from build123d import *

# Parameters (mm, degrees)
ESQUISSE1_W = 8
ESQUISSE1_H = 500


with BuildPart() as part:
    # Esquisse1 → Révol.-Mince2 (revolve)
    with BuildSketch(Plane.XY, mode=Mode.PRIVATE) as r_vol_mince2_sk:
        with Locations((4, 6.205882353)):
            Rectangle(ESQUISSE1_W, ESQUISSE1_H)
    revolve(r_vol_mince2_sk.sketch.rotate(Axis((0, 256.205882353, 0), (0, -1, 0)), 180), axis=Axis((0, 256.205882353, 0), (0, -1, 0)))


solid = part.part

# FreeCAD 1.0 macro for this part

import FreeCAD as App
import Part
import Sketcher
from FreeCAD import Vector
Q = App.Units.Quantity

doc = App.newDocument("Part")
body = doc.addObject("PartDesign::Body", "Body")

# Sketch on XY plane
sketch1 = body.newObject("Sketcher::SketchObject", "Sketch")
sketch1.AttachmentSupport = (doc.getObject("XY_Plane"), [""])
sketch1.MapMode = "FlatFace"
sketch1.addGeometry([
    Part.LineSegment(Vector(0, 256, 0), Vector(0, -244, 0)),
    Part.LineSegment(Vector(0, -244, 0), Vector(8, -244, 0)),
    Part.LineSegment(Vector(8, -244, 0), Vector(8, 256, 0)),
    Part.LineSegment(Vector(8, 256, 0), Vector(0, 256, 0)),
], False)
sketch1.addConstraint([
    Sketcher.Constraint("Coincident", 0, 2, 1, 1),
    Sketcher.Constraint("Coincident", 1, 2, 2, 1),
    Sketcher.Constraint("Coincident", 2, 2, 3, 1),
    Sketcher.Constraint("Coincident", 3, 2, 0, 1),
    Sketcher.Constraint("Vertical", 0),
    Sketcher.Constraint("Horizontal", 1),
    Sketcher.Constraint("Vertical", 2),
    Sketcher.Constraint("Horizontal", 3),
    Sketcher.Constraint("PointOnObject", 0, 2, -2),
    Sketcher.Constraint("DistanceX", 1, 1, 1, 2, Q("8 mm")),
    Sketcher.Constraint("DistanceY", 0, 2, 0, 1, Q("500 mm")),
    Sketcher.Constraint("DistanceY", 0, 2, -1, 1, Q("243.794118 mm")),
])
revolution = body.newObject("PartDesign::Revolution", "Revolution")
revolution.Profile = sketch1
revolution.ReferenceAxis = (sketch1, ["V_Axis"])
revolution.Angle = 360

doc.recompute()
